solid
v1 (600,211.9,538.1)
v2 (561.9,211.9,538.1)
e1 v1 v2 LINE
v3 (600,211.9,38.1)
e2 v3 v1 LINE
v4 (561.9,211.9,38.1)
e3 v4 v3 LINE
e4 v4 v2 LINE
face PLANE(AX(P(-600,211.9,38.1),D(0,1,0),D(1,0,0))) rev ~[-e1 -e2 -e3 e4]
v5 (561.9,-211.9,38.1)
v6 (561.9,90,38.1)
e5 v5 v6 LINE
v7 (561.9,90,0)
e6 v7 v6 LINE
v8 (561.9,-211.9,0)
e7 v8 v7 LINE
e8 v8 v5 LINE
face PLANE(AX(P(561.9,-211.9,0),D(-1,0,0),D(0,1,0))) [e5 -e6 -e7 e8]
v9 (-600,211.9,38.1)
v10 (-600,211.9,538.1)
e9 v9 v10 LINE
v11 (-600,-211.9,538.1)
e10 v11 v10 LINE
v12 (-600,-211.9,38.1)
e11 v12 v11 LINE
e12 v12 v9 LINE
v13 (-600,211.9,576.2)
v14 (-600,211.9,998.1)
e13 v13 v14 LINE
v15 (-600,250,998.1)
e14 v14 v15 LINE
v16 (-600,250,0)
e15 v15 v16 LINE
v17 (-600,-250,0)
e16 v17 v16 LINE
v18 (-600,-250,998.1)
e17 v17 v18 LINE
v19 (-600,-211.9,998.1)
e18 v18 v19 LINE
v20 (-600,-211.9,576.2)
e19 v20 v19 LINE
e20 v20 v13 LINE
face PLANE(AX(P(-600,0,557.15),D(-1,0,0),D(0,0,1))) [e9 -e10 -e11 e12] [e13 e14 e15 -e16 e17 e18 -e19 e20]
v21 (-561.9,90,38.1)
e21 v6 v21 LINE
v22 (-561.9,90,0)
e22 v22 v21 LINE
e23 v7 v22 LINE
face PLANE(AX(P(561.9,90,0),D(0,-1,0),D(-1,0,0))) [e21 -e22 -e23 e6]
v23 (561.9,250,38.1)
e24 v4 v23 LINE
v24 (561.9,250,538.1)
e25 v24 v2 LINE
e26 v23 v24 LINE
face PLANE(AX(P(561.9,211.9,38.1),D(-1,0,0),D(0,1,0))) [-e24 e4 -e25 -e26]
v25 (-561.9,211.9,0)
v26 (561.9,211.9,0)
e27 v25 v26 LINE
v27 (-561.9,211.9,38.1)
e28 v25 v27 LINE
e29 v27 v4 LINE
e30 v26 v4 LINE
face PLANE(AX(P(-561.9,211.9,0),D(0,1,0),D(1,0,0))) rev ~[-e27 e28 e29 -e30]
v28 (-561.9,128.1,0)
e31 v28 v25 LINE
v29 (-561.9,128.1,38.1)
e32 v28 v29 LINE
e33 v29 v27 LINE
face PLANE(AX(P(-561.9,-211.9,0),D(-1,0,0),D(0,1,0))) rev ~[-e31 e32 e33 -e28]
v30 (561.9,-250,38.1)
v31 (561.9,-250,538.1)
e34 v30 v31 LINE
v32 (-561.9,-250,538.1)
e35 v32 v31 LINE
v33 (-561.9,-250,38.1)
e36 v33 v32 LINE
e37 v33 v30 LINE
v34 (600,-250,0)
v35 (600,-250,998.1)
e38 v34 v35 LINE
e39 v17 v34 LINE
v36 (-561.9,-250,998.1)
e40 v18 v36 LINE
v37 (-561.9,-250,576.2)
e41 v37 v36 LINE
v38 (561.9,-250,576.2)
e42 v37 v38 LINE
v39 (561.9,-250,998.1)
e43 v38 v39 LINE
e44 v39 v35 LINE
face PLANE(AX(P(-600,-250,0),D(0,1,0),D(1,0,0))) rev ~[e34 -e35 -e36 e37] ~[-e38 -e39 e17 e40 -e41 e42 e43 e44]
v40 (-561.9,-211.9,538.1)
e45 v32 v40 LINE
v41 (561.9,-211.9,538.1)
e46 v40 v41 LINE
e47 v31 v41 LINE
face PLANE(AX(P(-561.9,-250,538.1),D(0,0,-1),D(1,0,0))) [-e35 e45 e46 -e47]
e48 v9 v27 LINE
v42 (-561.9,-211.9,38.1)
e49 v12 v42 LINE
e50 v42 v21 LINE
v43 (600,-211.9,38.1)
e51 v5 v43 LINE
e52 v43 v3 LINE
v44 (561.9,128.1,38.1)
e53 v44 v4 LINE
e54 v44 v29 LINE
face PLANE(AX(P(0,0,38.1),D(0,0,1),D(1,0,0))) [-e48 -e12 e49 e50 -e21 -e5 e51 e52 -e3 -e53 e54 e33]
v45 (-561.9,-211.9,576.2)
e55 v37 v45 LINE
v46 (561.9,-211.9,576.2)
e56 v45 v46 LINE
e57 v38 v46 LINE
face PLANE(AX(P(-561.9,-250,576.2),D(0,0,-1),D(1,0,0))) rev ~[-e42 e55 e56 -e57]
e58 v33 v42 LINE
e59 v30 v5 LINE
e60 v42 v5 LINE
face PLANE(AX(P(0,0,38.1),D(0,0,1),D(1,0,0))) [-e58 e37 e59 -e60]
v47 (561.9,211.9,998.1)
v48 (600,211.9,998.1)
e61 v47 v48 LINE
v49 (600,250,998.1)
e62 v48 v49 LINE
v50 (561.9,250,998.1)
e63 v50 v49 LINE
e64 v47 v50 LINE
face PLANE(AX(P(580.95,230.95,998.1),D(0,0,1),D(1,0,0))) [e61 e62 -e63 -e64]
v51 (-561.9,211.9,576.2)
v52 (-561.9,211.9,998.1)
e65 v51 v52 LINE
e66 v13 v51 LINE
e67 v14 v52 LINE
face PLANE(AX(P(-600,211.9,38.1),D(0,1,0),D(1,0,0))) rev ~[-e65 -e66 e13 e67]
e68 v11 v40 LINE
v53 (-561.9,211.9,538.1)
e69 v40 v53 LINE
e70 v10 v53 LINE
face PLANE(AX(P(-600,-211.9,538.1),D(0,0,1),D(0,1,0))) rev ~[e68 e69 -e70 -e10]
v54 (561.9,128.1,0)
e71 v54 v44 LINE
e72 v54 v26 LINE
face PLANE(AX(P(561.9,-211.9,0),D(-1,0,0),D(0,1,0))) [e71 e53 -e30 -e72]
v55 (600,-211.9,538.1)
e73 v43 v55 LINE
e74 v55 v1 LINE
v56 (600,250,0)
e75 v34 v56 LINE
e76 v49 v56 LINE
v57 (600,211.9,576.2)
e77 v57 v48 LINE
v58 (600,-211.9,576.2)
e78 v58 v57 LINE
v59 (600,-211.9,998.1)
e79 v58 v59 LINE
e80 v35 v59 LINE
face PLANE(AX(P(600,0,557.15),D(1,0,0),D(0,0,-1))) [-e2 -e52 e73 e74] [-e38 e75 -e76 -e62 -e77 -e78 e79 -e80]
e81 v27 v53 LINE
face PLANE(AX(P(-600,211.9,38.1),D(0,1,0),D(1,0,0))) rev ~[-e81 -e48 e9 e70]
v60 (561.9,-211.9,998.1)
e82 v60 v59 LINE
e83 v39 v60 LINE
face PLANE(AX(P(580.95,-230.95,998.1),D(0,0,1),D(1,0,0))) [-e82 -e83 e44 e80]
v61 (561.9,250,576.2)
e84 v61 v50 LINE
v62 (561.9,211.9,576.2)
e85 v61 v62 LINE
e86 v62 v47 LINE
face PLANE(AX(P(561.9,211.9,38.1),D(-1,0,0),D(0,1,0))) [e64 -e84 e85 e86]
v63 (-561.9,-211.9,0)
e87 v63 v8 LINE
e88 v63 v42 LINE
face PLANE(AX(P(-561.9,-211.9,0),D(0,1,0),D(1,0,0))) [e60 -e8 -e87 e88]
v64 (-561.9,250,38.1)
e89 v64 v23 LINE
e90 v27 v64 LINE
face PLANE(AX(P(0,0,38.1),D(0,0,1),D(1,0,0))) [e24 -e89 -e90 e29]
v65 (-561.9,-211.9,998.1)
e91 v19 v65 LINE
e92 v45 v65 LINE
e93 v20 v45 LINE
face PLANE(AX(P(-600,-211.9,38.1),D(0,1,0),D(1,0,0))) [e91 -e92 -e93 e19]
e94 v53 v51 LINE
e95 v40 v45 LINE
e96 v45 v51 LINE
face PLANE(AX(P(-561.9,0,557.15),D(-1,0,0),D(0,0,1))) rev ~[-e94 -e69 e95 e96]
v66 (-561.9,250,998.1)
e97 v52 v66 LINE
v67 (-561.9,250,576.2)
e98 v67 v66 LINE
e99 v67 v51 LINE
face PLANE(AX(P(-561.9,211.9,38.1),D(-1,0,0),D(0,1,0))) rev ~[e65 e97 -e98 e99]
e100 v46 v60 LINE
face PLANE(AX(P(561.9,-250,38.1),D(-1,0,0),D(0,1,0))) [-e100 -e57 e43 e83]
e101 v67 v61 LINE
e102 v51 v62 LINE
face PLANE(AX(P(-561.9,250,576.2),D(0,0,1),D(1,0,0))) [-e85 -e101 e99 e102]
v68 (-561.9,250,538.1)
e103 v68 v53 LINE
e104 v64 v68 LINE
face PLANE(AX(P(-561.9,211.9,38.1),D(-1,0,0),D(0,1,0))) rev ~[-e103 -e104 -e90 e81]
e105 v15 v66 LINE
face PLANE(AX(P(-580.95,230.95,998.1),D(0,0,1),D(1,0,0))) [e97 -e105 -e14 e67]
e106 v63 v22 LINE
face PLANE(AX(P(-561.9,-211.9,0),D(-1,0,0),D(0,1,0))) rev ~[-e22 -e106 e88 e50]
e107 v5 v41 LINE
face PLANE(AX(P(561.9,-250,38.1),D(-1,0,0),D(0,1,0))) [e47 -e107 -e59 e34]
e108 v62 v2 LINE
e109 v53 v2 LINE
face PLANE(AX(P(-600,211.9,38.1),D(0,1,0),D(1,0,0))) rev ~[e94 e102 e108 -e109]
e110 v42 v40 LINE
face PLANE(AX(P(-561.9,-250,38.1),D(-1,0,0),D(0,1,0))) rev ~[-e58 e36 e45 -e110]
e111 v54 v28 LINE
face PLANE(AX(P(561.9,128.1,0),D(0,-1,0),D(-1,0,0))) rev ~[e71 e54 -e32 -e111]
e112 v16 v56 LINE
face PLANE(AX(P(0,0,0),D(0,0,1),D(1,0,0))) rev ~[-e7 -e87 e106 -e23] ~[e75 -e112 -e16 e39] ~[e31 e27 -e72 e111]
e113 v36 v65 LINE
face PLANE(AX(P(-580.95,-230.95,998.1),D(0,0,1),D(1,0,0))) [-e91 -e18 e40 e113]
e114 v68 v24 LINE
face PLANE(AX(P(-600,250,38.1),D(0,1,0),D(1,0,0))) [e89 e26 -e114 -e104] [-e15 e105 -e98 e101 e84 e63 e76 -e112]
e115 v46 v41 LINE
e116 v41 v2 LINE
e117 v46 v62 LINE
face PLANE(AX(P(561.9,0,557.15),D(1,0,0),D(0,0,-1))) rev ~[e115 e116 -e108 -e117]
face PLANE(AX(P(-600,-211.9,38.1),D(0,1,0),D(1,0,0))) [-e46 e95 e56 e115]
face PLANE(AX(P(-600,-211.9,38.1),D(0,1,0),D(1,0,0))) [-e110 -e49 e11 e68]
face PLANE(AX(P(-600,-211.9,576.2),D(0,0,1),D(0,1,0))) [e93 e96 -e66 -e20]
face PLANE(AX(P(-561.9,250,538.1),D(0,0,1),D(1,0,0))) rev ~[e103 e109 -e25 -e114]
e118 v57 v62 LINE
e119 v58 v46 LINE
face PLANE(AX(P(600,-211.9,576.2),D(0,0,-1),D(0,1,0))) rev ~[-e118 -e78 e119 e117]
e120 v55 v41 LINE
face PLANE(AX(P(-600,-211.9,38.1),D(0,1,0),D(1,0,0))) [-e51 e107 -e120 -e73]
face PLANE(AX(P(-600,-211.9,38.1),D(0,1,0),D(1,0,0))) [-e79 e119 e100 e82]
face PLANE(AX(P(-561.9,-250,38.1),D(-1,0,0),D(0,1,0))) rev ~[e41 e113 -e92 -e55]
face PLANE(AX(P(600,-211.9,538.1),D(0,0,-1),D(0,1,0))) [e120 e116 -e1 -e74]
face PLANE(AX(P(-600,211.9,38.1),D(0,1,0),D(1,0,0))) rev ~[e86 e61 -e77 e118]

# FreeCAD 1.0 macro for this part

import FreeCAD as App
import Part
import Sketcher


def add_polygon(sketch, points):
    """Adds a closed chain of lines whose ends are joined by coincident constraints."""
    first, n = sketch.GeometryCount, len(points)
    for a, b in zip(points, points[1:] + points[:1]):
        sketch.addGeometry(Part.LineSegment(App.Vector(*a, 0), App.Vector(*b, 0)), False)
    for i in range(n):
        sketch.addConstraint(Sketcher.Constraint("Coincident", first + i, 2, first + (i + 1) % n, 1))

doc = App.newDocument("Part")
body = doc.addObject("PartDesign::Body", "Body")

# Sketch on XY plane
sketch1 = body.newObject("Sketcher::SketchObject", "Sketch")
sketch1.AttachmentSupport = (doc.getObject("XY_Plane"), [""])
sketch1.MapMode = "FlatFace"
add_polygon(sketch1, [(-600, 250), (-600, -250), (600, -250), (600, 250)])  # lines 0-3
add_polygon(sketch1, [(561.9, -211.9), (-561.9, -211.9), (-561.9, 211.9), (561.9, 211.9)])  # lines 4-7
sketch1.addConstraint([
    Sketcher.Constraint("Vertical", 0),
    Sketcher.Constraint("Horizontal", 1),
    Sketcher.Constraint("Vertical", 2),
    Sketcher.Constraint("Horizontal", 3),
    Sketcher.Constraint("Horizontal", 4),
    Sketcher.Constraint("Vertical", 5),
    Sketcher.Constraint("Horizontal", 6),
    Sketcher.Constraint("Vertical", 7),
    Sketcher.Constraint("Symmetric", 0, 2, 2, 2, -1, 1),
    Sketcher.Constraint("Symmetric", 4, 2, 6, 2, -1, 1),
    Sketcher.Constraint("DistanceX", 1, 1, 1, 2, 1200.0),
    Sketcher.Constraint("DistanceY", 0, 2, 0, 1, 500.0),
    Sketcher.Constraint("DistanceX", 4, 2, 4, 1, 1123.8),
    Sketcher.Constraint("DistanceY", 5, 1, 5, 2, 423.8),
])
pad1 = body.newObject("PartDesign::Pad", "Pad")
pad1.Profile = sketch1
pad1.Length = 38.1

# Sketch on XY plane
sketch2 = body.newObject("Sketcher::SketchObject", "Sketch001")
sketch2.AttachmentSupport = (doc.getObject("XY_Plane"), [""])
sketch2.MapMode = "FlatFace"
sketch2.AttachmentOffset = App.Placement(App.Vector(0, 0, 38.1), App.Rotation())
add_polygon(sketch2, [(-600, 250), (-600, 211.9), (-561.9, 211.9), (-561.9, 250)])  # lines 0-3
add_polygon(sketch2, [(-600, -211.9), (-600, -250), (-561.9, -250), (-561.9, -211.9)])  # lines 4-7
add_polygon(sketch2, [(561.9, 250), (561.9, 211.9), (600, 211.9), (600, 250)])  # lines 8-11
add_polygon(sketch2, [(561.9, -211.9), (561.9, -250), (600, -250), (600, -211.9)])  # lines 12-15
sketch2.addConstraint([
    Sketcher.Constraint("Vertical", 0),
    Sketcher.Constraint("Horizontal", 1),
    Sketcher.Constraint("Vertical", 2),
    Sketcher.Constraint("Horizontal", 3),
    Sketcher.Constraint("Vertical", 4),
    Sketcher.Constraint("Horizontal", 5),
    Sketcher.Constraint("Vertical", 6),
    Sketcher.Constraint("Horizontal", 7),
    Sketcher.Constraint("Vertical", 8),
    Sketcher.Constraint("Horizontal", 9),
    Sketcher.Constraint("Vertical", 10),
    Sketcher.Constraint("Horizontal", 11),
    Sketcher.Constraint("Vertical", 12),
    Sketcher.Constraint("Horizontal", 13),
    Sketcher.Constraint("Vertical", 14),
    Sketcher.Constraint("Horizontal", 15),
    Sketcher.Constraint("Symmetric", 6, 2, 8, 2, -1, 1),
    Sketcher.Constraint("Symmetric", 4, 2, 10, 2, -1, 1),
    Sketcher.Constraint("Symmetric", 2, 2, 12, 2, -1, 1),
    Sketcher.Constraint("Symmetric", 0, 2, 14, 2, -1, 1),
    Sketcher.Constraint("Symmetric", 1, 2, 8, 2, -2),
    Sketcher.Constraint("Symmetric", 3, 2, 10, 2, -2),
    Sketcher.Constraint("Equal", 15, 0),
    Sketcher.Constraint("DistanceX", 1, 1, 1, 2, 38.1),
    Sketcher.Constraint("DistanceX", 0, 2, -1, 1, 600.0),
    Sketcher.Constraint("DistanceY", -1, 1, 2, 2, 250.0),
])
pad2 = body.newObject("PartDesign::Pad", "Pad001")
pad2.Profile = sketch2
pad2.Length = 960

# Sketch on XY plane
sketch3 = body.newObject("Sketcher::SketchObject", "Sketch002")
sketch3.AttachmentSupport = (doc.getObject("XY_Plane"), [""])
sketch3.MapMode = "FlatFace"
add_polygon(sketch3, [(561.9, 128.1), (561.9, 90), (-561.9, 90), (-561.9, 128.1)])  # lines 0-3
sketch3.addConstraint([
    Sketcher.Constraint("Vertical", 0),
    Sketcher.Constraint("Horizontal", 1),
    Sketcher.Constraint("Vertical", 2),
    Sketcher.Constraint("Horizontal", 3),
    Sketcher.Constraint("DistanceX", 1, 2, 1, 1, 1123.8),
    Sketcher.Constraint("DistanceY", 0, 2, 0, 1, 38.1),
    Sketcher.Constraint("DistanceY", -1, 1, 0, 2, 90.0),
    Sketcher.Constraint("DistanceX", -1, 1, 0, 2, 561.9),
])
pad3 = body.newObject("PartDesign::Pad", "Pad002")
pad3.Profile = sketch3
pad3.Length = 38.1

# Sketch on XZ plane
sketch4 = body.newObject("Sketcher::SketchObject", "Sketch003")
sketch4.AttachmentSupport = (doc.getObject("XZ_Plane"), [""])
sketch4.MapMode = "FlatFace"
sketch4.AttachmentOffset = App.Placement(App.Vector(0, 0, 250), App.Rotation())
add_polygon(sketch4, [(-561.9, 576.2), (-561.9, 538.1), (561.9, 538.1), (561.9, 576.2)])  # lines 0-3
sketch4.addConstraint([
    Sketcher.Constraint("Vertical", 0),
    Sketcher.Constraint("Horizontal", 1),
    Sketcher.Constraint("Vertical", 2),
    Sketcher.Constraint("Horizontal", 3),
    Sketcher.Constraint("DistanceX", 1, 1, 1, 2, 1123.8),
    Sketcher.Constraint("DistanceY", 0, 2, 0, 1, 38.1),
    Sketcher.Constraint("DistanceX", 0, 2, -1, 1, 561.9),
    Sketcher.Constraint("DistanceY", -1, 1, 0, 2, 538.1),
])
pad4 = body.newObject("PartDesign::Pad", "Pad003")
pad4.Profile = sketch4
pad4.Length = 38.1
pad4.Reversed = True

# Sketch on XZ plane
sketch5 = body.newObject("Sketcher::SketchObject", "Sketch004")
sketch5.AttachmentSupport = (doc.getObject("XZ_Plane"), [""])
sketch5.MapMode = "FlatFace"
sketch5.AttachmentOffset = App.Placement(App.Vector(0, 0, -250), App.Rotation())
add_polygon(sketch5, [(-561.9, 538.1), (-561.9, 576.2), (561.9, 576.2), (561.9, 538.1)])  # lines 0-3
sketch5.addConstraint([
    Sketcher.Constraint("Vertical", 0),
    Sketcher.Constraint("Horizontal", 1),
    Sketcher.Constraint("Vertical", 2),
    Sketcher.Constraint("Horizontal", 3),
    Sketcher.Constraint("DistanceX", 1, 1, 1, 2, 1123.8),
    Sketcher.Constraint("DistanceY", 0, 1, 0, 2, 38.1),
    Sketcher.Constraint("DistanceX", 0, 2, -1, 1, 561.9),
    Sketcher.Constraint("DistanceY", -1, 1, 0, 2, 576.2),
])
pad5 = body.newObject("PartDesign::Pad", "Pad004")
pad5.Profile = sketch5
pad5.Length = 38.1

# Sketch on YZ plane
sketch6 = body.newObject("Sketcher::SketchObject", "Sketch005")
sketch6.AttachmentSupport = (doc.getObject("YZ_Plane"), [""])
sketch6.MapMode = "FlatFace"
sketch6.AttachmentOffset = App.Placement(App.Vector(0, 0, -600), App.Rotation())
add_polygon(sketch6, [(211.9, 538.1), (-211.9, 538.1), (-211.9, 576.2), (211.9, 576.2)])  # lines 0-3
sketch6.addConstraint([
    Sketcher.Constraint("Horizontal", 0),
    Sketcher.Constraint("Vertical", 1),
    Sketcher.Constraint("Horizontal", 2),
    Sketcher.Constraint("Vertical", 3),
    Sketcher.Constraint("DistanceX", 0, 2, 0, 1, 423.8),
    Sketcher.Constraint("DistanceY", 1, 1, 1, 2, 38.1),
    Sketcher.Constraint("DistanceX", 0, 2, -1, 1, 211.9),
    Sketcher.Constraint("DistanceY", -1, 1, 0, 2, 538.1),
])
pad6 = body.newObject("PartDesign::Pad", "Pad005")
pad6.Profile = sketch6
pad6.Length = 38.1

# Sketch on YZ plane
sketch7 = body.newObject("Sketcher::SketchObject", "Sketch006")
sketch7.AttachmentSupport = (doc.getObject("YZ_Plane"), [""])
sketch7.MapMode = "FlatFace"
sketch7.AttachmentOffset = App.Placement(App.Vector(0, 0, 600), App.Rotation())
add_polygon(sketch7, [(211.9, 576.2), (-211.9, 576.2), (-211.9, 538.1), (211.9, 538.1)])  # lines 0-3
sketch7.addConstraint([
    Sketcher.Constraint("Horizontal", 0),
    Sketcher.Constraint("Vertical", 1),
    Sketcher.Constraint("Horizontal", 2),
    Sketcher.Constraint("Vertical", 3),
    Sketcher.Constraint("DistanceX", 0, 2, 0, 1, 423.8),
    Sketcher.Constraint("DistanceY", 1, 2, 1, 1, 38.1),
    Sketcher.Constraint("DistanceX", 0, 2, -1, 1, 211.9),
    Sketcher.Constraint("DistanceY", -1, 1, 0, 2, 576.2),
])
pad7 = body.newObject("PartDesign::Pad", "Pad006")
pad7.Profile = sketch7
pad7.Length = 38.1
pad7.Reversed = True

doc.recompute()
